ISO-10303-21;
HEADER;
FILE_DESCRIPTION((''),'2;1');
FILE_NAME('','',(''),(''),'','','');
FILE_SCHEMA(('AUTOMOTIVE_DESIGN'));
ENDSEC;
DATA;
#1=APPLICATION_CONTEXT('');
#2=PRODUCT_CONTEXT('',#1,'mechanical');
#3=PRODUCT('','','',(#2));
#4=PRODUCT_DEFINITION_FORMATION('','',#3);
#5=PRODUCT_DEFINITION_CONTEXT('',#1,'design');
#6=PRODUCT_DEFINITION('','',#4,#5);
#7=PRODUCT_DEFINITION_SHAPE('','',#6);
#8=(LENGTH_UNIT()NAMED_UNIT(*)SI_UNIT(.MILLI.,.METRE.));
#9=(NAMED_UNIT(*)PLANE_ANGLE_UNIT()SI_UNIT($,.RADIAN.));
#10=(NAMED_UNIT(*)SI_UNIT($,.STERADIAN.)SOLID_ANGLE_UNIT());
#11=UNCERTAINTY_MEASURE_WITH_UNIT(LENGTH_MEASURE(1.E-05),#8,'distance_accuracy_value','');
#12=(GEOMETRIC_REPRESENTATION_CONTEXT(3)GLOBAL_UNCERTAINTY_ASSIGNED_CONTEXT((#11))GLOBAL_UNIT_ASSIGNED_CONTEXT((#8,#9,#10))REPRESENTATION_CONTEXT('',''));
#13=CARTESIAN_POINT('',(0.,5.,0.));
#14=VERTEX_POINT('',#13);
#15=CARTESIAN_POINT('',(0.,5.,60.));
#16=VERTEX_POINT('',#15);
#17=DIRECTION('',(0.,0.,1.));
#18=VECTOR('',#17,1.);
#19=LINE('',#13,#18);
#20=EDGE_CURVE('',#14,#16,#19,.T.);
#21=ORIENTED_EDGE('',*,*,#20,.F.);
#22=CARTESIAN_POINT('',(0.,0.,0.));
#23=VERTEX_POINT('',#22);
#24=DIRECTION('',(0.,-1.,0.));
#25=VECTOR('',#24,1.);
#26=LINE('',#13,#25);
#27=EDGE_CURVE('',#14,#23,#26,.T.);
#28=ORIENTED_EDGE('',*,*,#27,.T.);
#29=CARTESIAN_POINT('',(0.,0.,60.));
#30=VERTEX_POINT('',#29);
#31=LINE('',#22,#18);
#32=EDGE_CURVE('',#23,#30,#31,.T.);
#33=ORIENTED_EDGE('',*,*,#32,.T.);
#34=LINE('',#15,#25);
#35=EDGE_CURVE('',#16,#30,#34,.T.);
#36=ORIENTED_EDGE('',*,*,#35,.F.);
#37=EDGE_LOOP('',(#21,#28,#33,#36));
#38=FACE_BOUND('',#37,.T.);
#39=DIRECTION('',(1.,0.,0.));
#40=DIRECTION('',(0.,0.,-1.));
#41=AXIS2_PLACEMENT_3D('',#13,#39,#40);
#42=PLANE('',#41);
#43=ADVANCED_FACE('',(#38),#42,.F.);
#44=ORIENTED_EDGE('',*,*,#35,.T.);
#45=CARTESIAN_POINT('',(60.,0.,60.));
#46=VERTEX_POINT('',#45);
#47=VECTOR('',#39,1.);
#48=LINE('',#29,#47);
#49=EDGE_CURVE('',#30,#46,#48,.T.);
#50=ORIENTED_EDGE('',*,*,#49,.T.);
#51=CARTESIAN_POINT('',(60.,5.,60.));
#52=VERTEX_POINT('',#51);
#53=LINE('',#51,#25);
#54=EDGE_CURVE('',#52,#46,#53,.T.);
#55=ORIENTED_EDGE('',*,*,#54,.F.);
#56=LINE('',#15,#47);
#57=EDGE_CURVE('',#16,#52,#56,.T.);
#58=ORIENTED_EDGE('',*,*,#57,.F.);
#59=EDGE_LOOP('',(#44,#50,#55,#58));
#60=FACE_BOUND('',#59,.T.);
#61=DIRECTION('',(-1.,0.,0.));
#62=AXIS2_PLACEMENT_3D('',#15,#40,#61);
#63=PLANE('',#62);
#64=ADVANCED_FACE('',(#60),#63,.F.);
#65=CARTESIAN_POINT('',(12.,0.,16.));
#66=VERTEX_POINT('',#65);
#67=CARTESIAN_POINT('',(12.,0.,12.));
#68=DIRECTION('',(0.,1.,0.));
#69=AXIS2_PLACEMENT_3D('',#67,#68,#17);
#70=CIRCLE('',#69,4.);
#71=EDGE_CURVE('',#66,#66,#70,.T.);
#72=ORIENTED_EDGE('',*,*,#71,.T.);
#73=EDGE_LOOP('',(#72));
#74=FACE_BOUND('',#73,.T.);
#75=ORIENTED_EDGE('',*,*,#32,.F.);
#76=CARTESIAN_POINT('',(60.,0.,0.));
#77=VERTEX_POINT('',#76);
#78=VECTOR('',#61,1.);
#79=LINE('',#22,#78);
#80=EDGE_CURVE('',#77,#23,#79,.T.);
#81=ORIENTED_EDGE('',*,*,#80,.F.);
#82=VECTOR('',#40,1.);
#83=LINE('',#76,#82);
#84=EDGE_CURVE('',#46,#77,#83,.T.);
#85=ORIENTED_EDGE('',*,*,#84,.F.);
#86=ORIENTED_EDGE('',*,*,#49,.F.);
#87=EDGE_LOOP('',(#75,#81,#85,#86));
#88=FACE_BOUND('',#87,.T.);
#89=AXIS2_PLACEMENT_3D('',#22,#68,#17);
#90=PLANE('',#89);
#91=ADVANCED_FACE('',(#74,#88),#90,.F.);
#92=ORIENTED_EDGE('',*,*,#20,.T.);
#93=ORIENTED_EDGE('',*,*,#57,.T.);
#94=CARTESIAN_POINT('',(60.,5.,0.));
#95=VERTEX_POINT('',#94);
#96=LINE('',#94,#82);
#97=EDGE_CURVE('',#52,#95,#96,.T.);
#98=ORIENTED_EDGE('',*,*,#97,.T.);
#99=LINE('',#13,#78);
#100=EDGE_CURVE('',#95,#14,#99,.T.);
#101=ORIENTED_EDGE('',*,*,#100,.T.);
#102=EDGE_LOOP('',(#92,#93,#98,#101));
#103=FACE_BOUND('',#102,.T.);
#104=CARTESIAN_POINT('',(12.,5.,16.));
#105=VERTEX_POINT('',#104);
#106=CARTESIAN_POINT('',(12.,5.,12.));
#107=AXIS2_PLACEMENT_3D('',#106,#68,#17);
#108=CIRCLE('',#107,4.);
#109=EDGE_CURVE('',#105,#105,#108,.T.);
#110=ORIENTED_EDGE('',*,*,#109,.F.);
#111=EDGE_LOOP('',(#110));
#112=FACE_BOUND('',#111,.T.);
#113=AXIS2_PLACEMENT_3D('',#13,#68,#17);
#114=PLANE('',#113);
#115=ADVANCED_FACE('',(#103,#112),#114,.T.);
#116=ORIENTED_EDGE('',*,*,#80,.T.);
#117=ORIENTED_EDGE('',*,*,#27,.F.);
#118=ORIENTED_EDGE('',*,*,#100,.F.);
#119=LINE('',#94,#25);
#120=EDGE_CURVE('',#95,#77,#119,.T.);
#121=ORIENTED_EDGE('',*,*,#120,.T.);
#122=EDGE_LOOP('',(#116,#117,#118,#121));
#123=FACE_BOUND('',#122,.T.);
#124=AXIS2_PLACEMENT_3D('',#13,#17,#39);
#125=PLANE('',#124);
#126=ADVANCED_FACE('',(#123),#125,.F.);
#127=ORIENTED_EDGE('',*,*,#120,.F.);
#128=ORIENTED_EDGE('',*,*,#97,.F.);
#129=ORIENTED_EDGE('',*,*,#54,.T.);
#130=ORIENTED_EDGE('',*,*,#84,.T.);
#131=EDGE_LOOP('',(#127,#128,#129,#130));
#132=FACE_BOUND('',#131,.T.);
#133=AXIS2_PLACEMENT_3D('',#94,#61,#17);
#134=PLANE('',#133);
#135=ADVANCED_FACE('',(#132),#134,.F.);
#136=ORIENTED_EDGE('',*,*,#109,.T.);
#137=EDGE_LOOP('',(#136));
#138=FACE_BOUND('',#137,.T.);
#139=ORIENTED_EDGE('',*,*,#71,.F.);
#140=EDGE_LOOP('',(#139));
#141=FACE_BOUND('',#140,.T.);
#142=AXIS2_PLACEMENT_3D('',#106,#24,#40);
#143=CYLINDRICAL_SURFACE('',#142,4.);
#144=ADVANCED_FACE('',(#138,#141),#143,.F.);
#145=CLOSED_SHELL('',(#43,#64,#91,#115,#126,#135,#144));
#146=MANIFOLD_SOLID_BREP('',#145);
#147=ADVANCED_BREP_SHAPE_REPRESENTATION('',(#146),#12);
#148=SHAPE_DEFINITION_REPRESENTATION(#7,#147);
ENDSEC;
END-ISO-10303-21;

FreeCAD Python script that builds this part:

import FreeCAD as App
import Part
import Sketcher
Q = App.Units.Quantity


def add_polygon(sketch, points):
    """Adds a closed chain of lines whose ends are joined by coincident constraints."""
    first, n = sketch.GeometryCount, len(points)
    for a, b in zip(points, points[1:] + points[:1]):
        sketch.addGeometry(Part.LineSegment(App.Vector(*a, 0), App.Vector(*b, 0)), False)
    for i in range(n):
        sketch.addConstraint(Sketcher.Constraint("Coincident", first + i, 2, first + (i + 1) % n, 1))

doc = App.newDocument("Part")
params = doc.addObject("Spreadsheet::Sheet", "Params")
for row, (alias, value) in enumerate([
    ("sketch1_diameter", "8 mm"),
    ("sketch1_width", "60 mm"),
    ("pad1_length", "5 mm"),
], start=1):
    params.set(f"A{row}", alias)
    params.set(f"B{row}", "=" + value)
    params.setAlias(f"B{row}", alias)

body = doc.addObject("PartDesign::Body", "Body")

# Sketch on XZ plane
sketch1 = body.newObject("Sketcher::SketchObject", "Sketch")
sketch1.AttachmentSupport = (doc.getObject("XZ_Plane"), [""])
sketch1.MapMode = "FlatFace"
add_polygon(sketch1, [(0, 0), (0, 60), (60, 60), (60, 0)])  # lines 0-3
sketch1.addGeometry(Part.Circle(App.Vector(12, 12, 0), App.Vector(0, 0, 1), 4), False)  # 4
sketch1.addConstraint([
    Sketcher.Constraint("Vertical", 0),
    Sketcher.Constraint("Horizontal", 1),
    Sketcher.Constraint("Vertical", 2),
    Sketcher.Constraint("Horizontal", 3),
    Sketcher.Constraint("Coincident", 3, 2, -1, 1),
    Sketcher.Constraint("Equal", 3, 0),
    Sketcher.Constraint("Diameter", 4, Q("8 mm")),
    Sketcher.Constraint("DistanceX", 1, 1, 1, 2, Q("60 mm")),
    Sketcher.Constraint("DistanceX", -1, 1, 4, 3, Q("12 mm")),
    Sketcher.Constraint("DistanceY", -1, 1, 4, 3, Q("12 mm")),
])
sketch1.setExpression("Constraints[10]", "Params.sketch1_diameter")
sketch1.setExpression("Constraints[11]", "Params.sketch1_width")
pad1 = body.newObject("PartDesign::Pad", "Pad")
pad1.Profile = sketch1
pad1.setExpression("Length", "Params.pad1_length")
pad1.Reversed = True

doc.recompute()
